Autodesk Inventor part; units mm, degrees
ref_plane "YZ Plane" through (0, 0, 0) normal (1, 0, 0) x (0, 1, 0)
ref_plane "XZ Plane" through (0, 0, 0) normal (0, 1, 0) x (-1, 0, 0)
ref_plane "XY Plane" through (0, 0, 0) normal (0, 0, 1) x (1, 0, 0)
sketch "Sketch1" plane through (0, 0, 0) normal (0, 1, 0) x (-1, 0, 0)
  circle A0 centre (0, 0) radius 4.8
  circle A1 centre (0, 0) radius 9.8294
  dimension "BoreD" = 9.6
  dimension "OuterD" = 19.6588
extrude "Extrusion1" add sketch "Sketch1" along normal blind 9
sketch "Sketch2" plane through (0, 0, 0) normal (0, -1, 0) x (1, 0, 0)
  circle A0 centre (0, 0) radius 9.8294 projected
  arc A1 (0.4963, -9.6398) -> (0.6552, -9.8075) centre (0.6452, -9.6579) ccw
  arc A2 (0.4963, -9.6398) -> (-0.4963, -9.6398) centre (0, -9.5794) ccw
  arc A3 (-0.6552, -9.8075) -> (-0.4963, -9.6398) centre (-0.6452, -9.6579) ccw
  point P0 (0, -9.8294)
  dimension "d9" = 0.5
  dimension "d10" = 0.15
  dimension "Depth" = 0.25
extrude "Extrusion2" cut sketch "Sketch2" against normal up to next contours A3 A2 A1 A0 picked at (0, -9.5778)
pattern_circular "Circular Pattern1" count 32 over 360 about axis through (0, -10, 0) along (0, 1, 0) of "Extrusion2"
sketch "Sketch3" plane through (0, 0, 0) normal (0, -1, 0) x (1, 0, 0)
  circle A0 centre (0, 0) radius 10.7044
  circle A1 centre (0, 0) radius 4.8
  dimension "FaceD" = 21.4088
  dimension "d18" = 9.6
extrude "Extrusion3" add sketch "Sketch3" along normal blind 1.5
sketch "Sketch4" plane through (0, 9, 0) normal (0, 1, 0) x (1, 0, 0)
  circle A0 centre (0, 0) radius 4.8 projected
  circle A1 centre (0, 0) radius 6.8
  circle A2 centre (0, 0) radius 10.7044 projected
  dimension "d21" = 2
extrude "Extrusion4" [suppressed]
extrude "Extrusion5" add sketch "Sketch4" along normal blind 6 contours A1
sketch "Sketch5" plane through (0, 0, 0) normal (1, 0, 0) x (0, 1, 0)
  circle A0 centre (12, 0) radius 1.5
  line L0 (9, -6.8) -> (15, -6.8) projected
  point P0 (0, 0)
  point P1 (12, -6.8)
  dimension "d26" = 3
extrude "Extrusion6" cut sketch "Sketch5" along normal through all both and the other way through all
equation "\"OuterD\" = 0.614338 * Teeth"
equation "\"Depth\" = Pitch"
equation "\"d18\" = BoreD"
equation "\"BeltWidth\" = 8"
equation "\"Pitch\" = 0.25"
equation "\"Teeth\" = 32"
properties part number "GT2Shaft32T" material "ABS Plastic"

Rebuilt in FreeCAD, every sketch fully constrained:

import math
import FreeCAD as App
import Part
import Sketcher

doc = App.newDocument("Part")
params = doc.addObject("Spreadsheet::Sheet", "Params")
for row, (alias, value) in enumerate([
    ("sketch1_diameter", "9.6 mm"),
    ("pad1_length", "9 mm"),
    ("sketch2_radius", "0.5 mm"),
    ("sketch2_radius2", "0.15 mm"),
    ("sketch2_width", "0.01 mm"),
    ("sketch3_diameter", "9.6 mm"),
    ("pad2_length", "1.5 mm"),
    ("sketch4_diameter", "13.6 mm"),
    ("sketch4_diameter2", "9.6 mm"),
    ("pad3_length", "6 mm"),
    ("sketch5_diameter", "3 mm"),
], start=1):
    params.set(f"A{row}", alias)
    params.set(f"B{row}", "=" + value)
    params.setAlias(f"B{row}", alias)

body = doc.addObject("PartDesign::Body", "Body")

sketch1 = body.newObject("Sketcher::SketchObject", "Sketch")
sketch1.AttachmentSupport = (doc.getObject("XZ_Plane"), [""])
sketch1.MapMode = "FlatFace"
sketch1.addGeometry([
    Part.Circle(App.Vector(0, 0, 0), App.Vector(0, 0, 1), 9.8294),
    Part.Circle(App.Vector(0, 0, 0), App.Vector(0, 0, 1), 4.8),
], False)
sketch1.addConstraint([
    Sketcher.Constraint("Coincident", 0, 3, -1, 1),
    Sketcher.Constraint("Coincident", 1, 3, -1, 1),
    Sketcher.Constraint("Diameter", 1, 9.6),
    Sketcher.Constraint("Diameter", 0, 19.6588),
])
sketch1.setExpression("Constraints[2]", "Params.sketch1_diameter")
pad1 = body.newObject("PartDesign::Pad", "Pad")
pad1.Profile = sketch1
pad1.setExpression("Length", "Params.pad1_length")
pad1.Reversed = True

sketch2 = body.newObject("Sketcher::SketchObject", "Sketch001")
sketch2.AttachmentSupport = (doc.getObject("XZ_Plane"), [""])
sketch2.MapMode = "FlatFace"
sketch2.addGeometry([
    Part.ArcOfCircle(Part.Circle(App.Vector(-0.6452, -9.6579, 0), App.Vector(0, 0, 1), 0.149934), math.radians(-93.824243), math.radians(6.930762)),
    Part.ArcOfCircle(Part.Circle(App.Vector(0, 0, 0), App.Vector(0, 0, 1), 9.8294), math.radians(-93.822024), math.radians(-86.177976)),
    Part.ArcOfCircle(Part.Circle(App.Vector(0.6452, -9.6579, 0), App.Vector(0, 0, 1), 0.149996), math.radians(173.069238), math.radians(273.824243)),
    Part.ArcOfCircle(Part.Circle(App.Vector(0, -9.5794, 0), App.Vector(0, 0, 1), 0.499962), math.radians(-6.938807), math.radians(186.938807)),
], False)
sketch2.addConstraint([
    Sketcher.Constraint("Tangent", 0, 1, 1, 1),
    Sketcher.Constraint("Tangent", 1, 2, 2, 2),
    Sketcher.Constraint("Tangent", 2, 1, 3, 1),
    Sketcher.Constraint("Tangent", 3, 2, 0, 2),
    Sketcher.Constraint("Coincident", 1, 3, -1, 1),
    Sketcher.Constraint("Equal", 0, 2),
    Sketcher.Constraint("PointOnObject", 3, 3, -2),
    Sketcher.Constraint("Radius", 3, 0.5),
    Sketcher.Constraint("Radius", 0, 0.15),
    Sketcher.Constraint("Radius", 1, 9.8294),
    Sketcher.Constraint("DistanceX", 0, 1, 0, 3, 0.01),
])
sketch2.setExpression("Constraints[7]", "Params.sketch2_radius")
sketch2.setExpression("Constraints[8]", "Params.sketch2_radius2")
sketch2.setExpression("Constraints[10]", "Params.sketch2_width")
pocket1 = body.newObject("PartDesign::Pocket", "Pocket")
pocket1.Profile = sketch2
pocket1.Type = "UpToFirst"
doc.recompute()

polarpattern = body.newObject("PartDesign::PolarPattern", "PolarPattern")
polarpattern.Originals = [pocket1]
polarpattern.Axis = (doc.getObject("Y_Axis"), [""])
polarpattern.Angle = 360
polarpattern.Occurrences = 32
body.Tip = polarpattern

sketch3 = body.newObject("Sketcher::SketchObject", "Sketch002")
sketch3.AttachmentSupport = (doc.getObject("XZ_Plane"), [""])
sketch3.MapMode = "FlatFace"
sketch3.addGeometry([
    Part.Circle(App.Vector(0, 0, 0), App.Vector(0, 0, 1), 10.7044),
    Part.Circle(App.Vector(0, 0, 0), App.Vector(0, 0, 1), 4.8),
], False)
sketch3.addConstraint([
    Sketcher.Constraint("Coincident", 0, 3, -1, 1),
    Sketcher.Constraint("Coincident", 1, 3, -1, 1),
    Sketcher.Constraint("Diameter", 1, 9.6),
    Sketcher.Constraint("Diameter", 0, 21.4088),
])
sketch3.setExpression("Constraints[2]", "Params.sketch3_diameter")
pad2 = body.newObject("PartDesign::Pad", "Pad001")
pad2.Profile = sketch3
pad2.setExpression("Length", "Params.pad2_length")

sketch4 = body.newObject("Sketcher::SketchObject", "Sketch003")
sketch4.AttachmentSupport = (doc.getObject("XZ_Plane"), [""])
sketch4.MapMode = "FlatFace"
sketch4.AttachmentOffset = App.Placement(App.Vector(0, 0, -9), App.Rotation())
sketch4.addGeometry([
    Part.Circle(App.Vector(0, 0, 0), App.Vector(0, 0, 1), 6.8),
    Part.Circle(App.Vector(0, 0, 0), App.Vector(0, 0, 1), 4.8),
], False)
sketch4.addConstraint([
    Sketcher.Constraint("Coincident", 0, 3, -1, 1),
    Sketcher.Constraint("Coincident", 1, 3, -1, 1),
    Sketcher.Constraint("Diameter", 0, 13.6),
    Sketcher.Constraint("Diameter", 1, 9.6),
])
sketch4.setExpression("Constraints[2]", "Params.sketch4_diameter")
sketch4.setExpression("Constraints[3]", "Params.sketch4_diameter2")
pad3 = body.newObject("PartDesign::Pad", "Pad002")
pad3.Profile = sketch4
pad3.setExpression("Length", "Params.pad3_length")
pad3.Reversed = True

sketch5 = body.newObject("Sketcher::SketchObject", "Sketch004")
sketch5.AttachmentSupport = (doc.getObject("YZ_Plane"), [""])
sketch5.MapMode = "FlatFace"
sketch5.addGeometry(Part.Circle(App.Vector(12, 0, 0), App.Vector(0, 0, 1), 1.5), False)
sketch5.addConstraint([
    Sketcher.Constraint("PointOnObject", 0, 3, -1),
    Sketcher.Constraint("Diameter", 0, 3.0),
    Sketcher.Constraint("DistanceX", -1, 1, 0, 3, 12.0),
])
sketch5.setExpression("Constraints[1]", "Params.sketch5_diameter")
pocket2 = body.newObject("PartDesign::Pocket", "Pocket001")
pocket2.Profile = sketch5
pocket2.Type = "ThroughAll"
pocket2.Midplane = True

doc.recompute()
